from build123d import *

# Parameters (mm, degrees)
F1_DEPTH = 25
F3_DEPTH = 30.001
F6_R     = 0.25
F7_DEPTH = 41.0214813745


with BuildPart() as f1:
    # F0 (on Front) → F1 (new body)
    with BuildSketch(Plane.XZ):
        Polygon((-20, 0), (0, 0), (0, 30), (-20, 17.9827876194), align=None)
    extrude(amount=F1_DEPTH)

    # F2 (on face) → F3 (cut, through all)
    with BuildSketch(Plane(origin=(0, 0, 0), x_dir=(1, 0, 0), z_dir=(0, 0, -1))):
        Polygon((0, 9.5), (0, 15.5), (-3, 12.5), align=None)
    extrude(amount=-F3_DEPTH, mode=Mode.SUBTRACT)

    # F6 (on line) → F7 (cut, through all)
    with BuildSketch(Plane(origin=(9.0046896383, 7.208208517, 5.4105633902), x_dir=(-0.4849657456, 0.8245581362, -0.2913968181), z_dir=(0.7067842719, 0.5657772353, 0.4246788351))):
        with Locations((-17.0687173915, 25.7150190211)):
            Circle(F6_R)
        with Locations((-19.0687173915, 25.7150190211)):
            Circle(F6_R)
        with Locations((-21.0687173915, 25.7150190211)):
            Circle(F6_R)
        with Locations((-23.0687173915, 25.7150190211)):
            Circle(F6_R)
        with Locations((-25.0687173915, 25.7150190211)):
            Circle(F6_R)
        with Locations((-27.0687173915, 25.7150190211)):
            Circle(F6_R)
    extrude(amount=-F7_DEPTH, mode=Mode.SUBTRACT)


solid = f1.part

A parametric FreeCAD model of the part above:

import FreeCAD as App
import Part
import Sketcher
Q = App.Units.Quantity


def add_polygon(sketch, points):
    """Adds a closed chain of lines whose ends are joined by coincident constraints."""
    first, n = sketch.GeometryCount, len(points)
    for a, b in zip(points, points[1:] + points[:1]):
        sketch.addGeometry(Part.LineSegment(App.Vector(*a, 0), App.Vector(*b, 0)), False)
    for i in range(n):
        sketch.addConstraint(Sketcher.Constraint("Coincident", first + i, 2, first + (i + 1) % n, 1))

doc = App.newDocument("Part")
body = doc.addObject("PartDesign::Body", "Body")

sketch1 = doc.addObject("Sketcher::SketchObject", "Sketch")
body.addObject(sketch1)
sketch1.AttachmentSupport = (doc.XZ_Plane, [""])
sketch1.MapMode = "FlatFace"
add_polygon(sketch1, [(-20, 0), (0, 0), (0, 30), (-20, 17.982788)])
sketch1.addConstraint([
    Sketcher.Constraint("Horizontal", 0),
    Sketcher.Constraint("Vertical", 1),
    Sketcher.Constraint("Vertical", 3),
    Sketcher.Constraint("Coincident", 0, 2, -1, 1),
    Sketcher.Constraint("DistanceX", 0, 1, 0, 2, Q("20 mm")),
    Sketcher.Constraint("DistanceY", 1, 1, 1, 2, Q("30 mm")),
    Sketcher.Constraint("Angle", 2, Q("-149 deg")),
])
pad1 = doc.addObject("PartDesign::Pad", "Pad")
body.addObject(pad1)
pad1.Profile = sketch1
pad1.Length = 25

sketch2 = doc.addObject("Sketcher::SketchObject", "Sketch001")
body.addObject(sketch2)
sketch2.AttachmentSupport = (doc.XY_Plane, [""])
sketch2.MapMode = "FlatFace"
add_polygon(sketch2, [(0, -9.5), (0, -15.5), (-3, -12.5)])
sketch2.addConstraint([
    Sketcher.Constraint("Vertical", 0),
    Sketcher.Constraint("PointOnObject", 0, 2, -2),
    Sketcher.Constraint("Perpendicular", 1, 2),
    Sketcher.Constraint("Equal", 1, 2),
    Sketcher.Constraint("DistanceY", 0, 2, 0, 1, Q("6 mm")),
    Sketcher.Constraint("DistanceY", 0, 2, -1, 1, Q("15.5 mm")),
])
pocket1 = doc.addObject("PartDesign::Pocket", "Pocket")
body.addObject(pocket1)
pocket1.Profile = sketch2
pocket1.Type = "ThroughAll"
pocket1.Reversed = True

sketch3 = doc.addObject("Sketcher::SketchObject", "Sketch002")
body.addObject(sketch3)
sketch3.Placement = App.Placement(App.Vector(9.00469, 7.208209, 5.410563), App.Rotation(App.Vector(-0.484965746, 0.824558136, -0.291396818), App.Vector(-0.515038075, 0, 0.857167301), App.Vector(0.706784272, 0.565777235, 0.424678835), "ZXY"))
sketch3.addGeometry([
    Part.Circle(App.Vector(-17.068717, 25.715019, 0), App.Vector(0, 0, 1), 0.25),
    Part.Circle(App.Vector(-19.068717, 25.715019, 0), App.Vector(0, 0, 1), 0.25),
    Part.Circle(App.Vector(-21.068717, 25.715019, 0), App.Vector(0, 0, 1), 0.25),
    Part.Circle(App.Vector(-23.068717, 25.715019, 0), App.Vector(0, 0, 1), 0.25),
    Part.Circle(App.Vector(-25.068717, 25.715019, 0), App.Vector(0, 0, 1), 0.25),
    Part.Circle(App.Vector(-27.068717, 25.715019, 0), App.Vector(0, 0, 1), 0.25),
], False)
sketch3.addConstraint([
    Sketcher.Constraint("Equal", 0, 1),
    Sketcher.Constraint("Equal", 1, 2),
    Sketcher.Constraint("Equal", 2, 3),
    Sketcher.Constraint("Equal", 3, 4),
    Sketcher.Constraint("Equal", 4, 5),
    Sketcher.Constraint("Horizontal", 0, 3, 1, 3),
    Sketcher.Constraint("Horizontal", 1, 3, 2, 3),
    Sketcher.Constraint("Horizontal", 2, 3, 3, 3),
    Sketcher.Constraint("Horizontal", 3, 3, 4, 3),
    Sketcher.Constraint("Horizontal", 4, 3, 5, 3),
    Sketcher.Constraint("Diameter", 0, Q("0.5 mm")),
    Sketcher.Constraint("DistanceX", 1, 3, 0, 3, Q("2 mm")),
    Sketcher.Constraint("DistanceX", 2, 3, 1, 3, Q("2 mm")),
    Sketcher.Constraint("DistanceX", 3, 3, 2, 3, Q("2 mm")),
    Sketcher.Constraint("DistanceX", 4, 3, 3, 3, Q("2 mm")),
    Sketcher.Constraint("DistanceX", 5, 3, 4, 3, Q("2 mm")),
    Sketcher.Constraint("DistanceY", -1, 1, 0, 3, Q("25.715019 mm")),
    Sketcher.Constraint("DistanceX", 0, 3, -1, 1, Q("17.068717 mm")),
])
pocket2 = doc.addObject("PartDesign::Pocket", "Pocket001")
body.addObject(pocket2)
pocket2.Profile = sketch3
pocket2.Type = "ThroughAll"

doc.recompute()
